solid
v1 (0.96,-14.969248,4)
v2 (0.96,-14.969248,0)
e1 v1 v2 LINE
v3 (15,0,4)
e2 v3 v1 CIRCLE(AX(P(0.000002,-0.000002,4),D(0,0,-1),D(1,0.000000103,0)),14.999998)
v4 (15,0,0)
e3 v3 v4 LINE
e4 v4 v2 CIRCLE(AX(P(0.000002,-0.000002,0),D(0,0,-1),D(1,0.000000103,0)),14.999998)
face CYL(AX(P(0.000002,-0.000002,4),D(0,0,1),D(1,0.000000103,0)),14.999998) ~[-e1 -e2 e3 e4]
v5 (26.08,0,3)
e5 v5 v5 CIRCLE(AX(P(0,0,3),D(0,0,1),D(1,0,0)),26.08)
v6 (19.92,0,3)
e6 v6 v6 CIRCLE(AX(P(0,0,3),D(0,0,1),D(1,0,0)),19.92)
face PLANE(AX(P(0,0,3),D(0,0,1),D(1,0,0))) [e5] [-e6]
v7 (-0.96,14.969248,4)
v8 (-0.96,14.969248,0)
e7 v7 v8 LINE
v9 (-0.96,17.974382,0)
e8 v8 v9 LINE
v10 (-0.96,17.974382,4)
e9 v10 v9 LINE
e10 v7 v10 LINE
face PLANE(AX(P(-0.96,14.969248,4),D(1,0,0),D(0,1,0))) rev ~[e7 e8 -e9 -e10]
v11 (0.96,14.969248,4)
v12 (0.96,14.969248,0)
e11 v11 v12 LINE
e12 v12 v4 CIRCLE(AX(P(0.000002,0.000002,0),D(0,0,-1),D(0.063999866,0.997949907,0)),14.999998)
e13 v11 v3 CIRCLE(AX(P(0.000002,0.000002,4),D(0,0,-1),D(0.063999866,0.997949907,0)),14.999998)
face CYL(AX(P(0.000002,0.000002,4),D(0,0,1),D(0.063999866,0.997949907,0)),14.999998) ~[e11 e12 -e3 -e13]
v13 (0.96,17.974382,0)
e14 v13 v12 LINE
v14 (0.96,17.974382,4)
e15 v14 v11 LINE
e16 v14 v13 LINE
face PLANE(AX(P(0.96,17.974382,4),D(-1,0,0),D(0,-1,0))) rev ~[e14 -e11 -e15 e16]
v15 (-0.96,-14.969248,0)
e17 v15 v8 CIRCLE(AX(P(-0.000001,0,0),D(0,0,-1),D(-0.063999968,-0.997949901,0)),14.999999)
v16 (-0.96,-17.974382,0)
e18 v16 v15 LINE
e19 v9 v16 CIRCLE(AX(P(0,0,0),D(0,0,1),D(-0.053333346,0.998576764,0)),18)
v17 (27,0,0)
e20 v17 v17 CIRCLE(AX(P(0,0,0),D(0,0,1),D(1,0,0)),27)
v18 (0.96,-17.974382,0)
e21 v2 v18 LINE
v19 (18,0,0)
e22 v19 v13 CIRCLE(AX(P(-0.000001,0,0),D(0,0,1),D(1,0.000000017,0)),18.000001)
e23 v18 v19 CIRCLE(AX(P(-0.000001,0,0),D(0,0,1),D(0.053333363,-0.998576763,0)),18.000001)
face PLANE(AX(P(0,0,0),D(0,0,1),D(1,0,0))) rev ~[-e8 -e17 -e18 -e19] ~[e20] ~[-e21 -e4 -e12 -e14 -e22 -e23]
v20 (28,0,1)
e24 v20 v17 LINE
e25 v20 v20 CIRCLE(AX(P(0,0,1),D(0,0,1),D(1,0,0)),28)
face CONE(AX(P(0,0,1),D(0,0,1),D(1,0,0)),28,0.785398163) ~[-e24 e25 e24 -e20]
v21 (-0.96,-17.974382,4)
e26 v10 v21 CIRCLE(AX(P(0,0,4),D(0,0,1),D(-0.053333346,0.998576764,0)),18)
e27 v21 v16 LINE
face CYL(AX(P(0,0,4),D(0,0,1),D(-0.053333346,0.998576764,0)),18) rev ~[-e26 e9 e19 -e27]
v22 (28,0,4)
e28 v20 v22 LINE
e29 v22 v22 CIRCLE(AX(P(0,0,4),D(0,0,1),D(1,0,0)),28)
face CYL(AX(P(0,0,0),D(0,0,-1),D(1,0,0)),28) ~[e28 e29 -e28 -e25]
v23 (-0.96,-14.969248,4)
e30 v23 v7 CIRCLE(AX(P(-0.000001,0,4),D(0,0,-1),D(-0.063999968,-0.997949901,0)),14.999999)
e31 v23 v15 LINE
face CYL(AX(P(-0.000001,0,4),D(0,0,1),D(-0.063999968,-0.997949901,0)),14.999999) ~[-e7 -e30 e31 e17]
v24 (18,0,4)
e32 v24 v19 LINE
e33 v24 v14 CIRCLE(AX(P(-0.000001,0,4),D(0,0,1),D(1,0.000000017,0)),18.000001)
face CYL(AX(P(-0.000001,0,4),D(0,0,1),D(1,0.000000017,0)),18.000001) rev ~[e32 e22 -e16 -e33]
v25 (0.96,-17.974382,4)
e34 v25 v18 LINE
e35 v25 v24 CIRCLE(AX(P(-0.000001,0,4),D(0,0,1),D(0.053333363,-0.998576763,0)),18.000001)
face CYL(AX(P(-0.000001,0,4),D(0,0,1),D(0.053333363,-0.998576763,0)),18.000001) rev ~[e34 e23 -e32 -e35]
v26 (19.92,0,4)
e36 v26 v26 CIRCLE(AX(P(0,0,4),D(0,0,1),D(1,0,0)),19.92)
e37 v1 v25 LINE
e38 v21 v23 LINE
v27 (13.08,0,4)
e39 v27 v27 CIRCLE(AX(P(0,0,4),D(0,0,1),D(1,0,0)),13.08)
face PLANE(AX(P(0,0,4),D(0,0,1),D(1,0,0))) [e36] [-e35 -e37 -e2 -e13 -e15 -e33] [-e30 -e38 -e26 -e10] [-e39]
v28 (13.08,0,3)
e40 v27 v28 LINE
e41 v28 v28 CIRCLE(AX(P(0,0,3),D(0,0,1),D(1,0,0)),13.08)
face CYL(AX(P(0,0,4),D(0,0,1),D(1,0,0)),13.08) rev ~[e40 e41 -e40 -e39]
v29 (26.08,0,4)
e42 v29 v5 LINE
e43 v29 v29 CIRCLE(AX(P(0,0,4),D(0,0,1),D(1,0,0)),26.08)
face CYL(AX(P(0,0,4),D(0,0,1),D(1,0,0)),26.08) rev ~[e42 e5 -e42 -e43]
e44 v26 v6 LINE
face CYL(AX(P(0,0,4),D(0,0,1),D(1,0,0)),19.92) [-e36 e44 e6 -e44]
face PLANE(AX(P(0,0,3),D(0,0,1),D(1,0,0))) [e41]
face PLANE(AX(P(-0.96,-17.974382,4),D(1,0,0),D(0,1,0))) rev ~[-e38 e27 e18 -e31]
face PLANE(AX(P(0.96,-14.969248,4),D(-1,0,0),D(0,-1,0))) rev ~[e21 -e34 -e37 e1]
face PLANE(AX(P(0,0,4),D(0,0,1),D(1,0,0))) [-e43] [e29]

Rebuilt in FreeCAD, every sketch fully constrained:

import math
import FreeCAD as App
import Part
import Sketcher
from FreeCAD import Vector


def edges_at(feature, points):
    """Names of the edges that pass closest to the given points."""
    edges = feature.Shape.Edges
    near = lambda p: min(range(len(edges)), key=lambda i: edges[i].distToShape(Part.Vertex(*p))[0])
    return sorted({f"Edge{near(p) + 1}" for p in points})

doc = App.newDocument("Part")
body = doc.addObject("PartDesign::Body", "Body")

# Sketch on XY plane
sketch1 = doc.addObject("Sketcher::SketchObject", "Sketch")
body.addObject(sketch1)
sketch1.AttachmentSupport = (doc.XY_Plane, [""])
sketch1.MapMode = "FlatFace"
sketch1.addGeometry(Part.Circle(Vector(0, 0, 0), Vector(0, 0, 1), 28), False)
sketch1.addConstraint([
    Sketcher.Constraint("Coincident", 0, 3, -1, 1),
    Sketcher.Constraint("Diameter", 0, 56.0),
])
pad1 = doc.addObject("PartDesign::Pad", "Pad")
body.addObject(pad1)
pad1.Profile = sketch1
pad1.Length = 4

# Sketch on XY plane
sketch2 = doc.addObject("Sketcher::SketchObject", "Sketch001")
body.addObject(sketch2)
sketch2.AttachmentSupport = (doc.XY_Plane, [""])
sketch2.MapMode = "FlatFace"
sketch2.AttachmentOffset = App.Placement(Vector(0, 0, 4), App.Rotation())
sketch2.addGeometry([
    Part.ArcOfCircle(Part.Circle(Vector(0, 0, 0), Vector(0, 0, 1), 15), math.radians(94), math.radians(266)),  # 0
    Part.LineSegment(Vector(-1, 15, 0), Vector(-1, 18, 0)),  # 1
    Part.ArcOfCircle(Part.Circle(Vector(0, 0, 0), Vector(0, 0, 1), 18), math.radians(93), math.radians(267)),  # 2
    Part.LineSegment(Vector(-1, -18, 0), Vector(-1, -15, 0)),  # 3
    Part.ArcOfCircle(Part.Circle(Vector(0, 0, 0), Vector(0, 0, 1), 15), math.radians(0), math.radians(86)),  # 4
    Part.ArcOfCircle(Part.Circle(Vector(0, 0, 0), Vector(0, 0, 1), 15), math.radians(-86), math.radians(0)),  # 5
    Part.LineSegment(Vector(1, -15, 0), Vector(1, -18, 0)),  # 6
    Part.ArcOfCircle(Part.Circle(Vector(0, 0, 0), Vector(0, 0, 1), 18), math.radians(-87), math.radians(0)),  # 7
    Part.ArcOfCircle(Part.Circle(Vector(0, 0, 0), Vector(0, 0, 1), 18), math.radians(0), math.radians(87)),  # 8
    Part.LineSegment(Vector(1, 18, 0), Vector(1, 15, 0)),  # 9
], False)
sketch2.addConstraint([
    Sketcher.Constraint("Coincident", 0, 1, 1, 1),
    Sketcher.Constraint("Coincident", 1, 2, 2, 1),
    Sketcher.Constraint("Coincident", 2, 2, 3, 1),
    Sketcher.Constraint("Coincident", 3, 2, 0, 2),
    Sketcher.Constraint("Tangent", 4, 1, 5, 2),
    Sketcher.Constraint("Coincident", 5, 1, 6, 1),
    Sketcher.Constraint("Coincident", 6, 2, 7, 1),
    Sketcher.Constraint("Tangent", 7, 2, 8, 1),
    Sketcher.Constraint("Coincident", 8, 2, 9, 1),
    Sketcher.Constraint("Coincident", 9, 2, 4, 2),
    Sketcher.Constraint("Vertical", 1),
    Sketcher.Constraint("Vertical", 3),
    Sketcher.Constraint("Vertical", 6),
    Sketcher.Constraint("Vertical", 9),
    Sketcher.Constraint("Coincident", 0, 3, -1, 1),
    Sketcher.Constraint("Coincident", 2, 3, -1, 1),
    Sketcher.Constraint("Coincident", 4, 3, -1, 1),
    Sketcher.Constraint("Coincident", 7, 3, -1, 1),
    Sketcher.Constraint("Equal", 0, 4),
    Sketcher.Constraint("Equal", 4, 5),
    Sketcher.Constraint("Equal", 2, 7),
    Sketcher.Constraint("Equal", 7, 8),
    Sketcher.Constraint("PointOnObject", 4, 1, -1),
    Sketcher.Constraint("PointOnObject", 7, 2, -1),
    Sketcher.Constraint("Horizontal", 3, 2, 5, 1),
    Sketcher.Constraint("Horizontal", 1, 2, 8, 2),
    Sketcher.Constraint("Vertical", 1, 2, 2, 2),
    Sketcher.Constraint("Radius", 0, 14.999999),
    Sketcher.Constraint("Radius", 2, 18.0),
    Sketcher.Constraint("DistanceX", 0, 1, -1, 1, 0.96),
])
pocket1 = doc.addObject("PartDesign::Pocket", "Pocket")
body.addObject(pocket1)
pocket1.Profile = sketch2
pocket1.Type = "ThroughAll"

# Sketch on XY plane
sketch3 = doc.addObject("Sketcher::SketchObject", "Sketch002")
body.addObject(sketch3)
sketch3.AttachmentSupport = (doc.XY_Plane, [""])
sketch3.MapMode = "FlatFace"
sketch3.AttachmentOffset = App.Placement(Vector(0, 0, 4), App.Rotation())
sketch3.addGeometry([
    Part.Circle(Vector(0, 0, 0), Vector(0, 0, 1), 26),
    Part.Circle(Vector(0, 0, 0), Vector(0, 0, 1), 20),
    Part.Circle(Vector(0, 0, 0), Vector(0, 0, 1), 13),
], False)
sketch3.addConstraint([
    Sketcher.Constraint("Coincident", 0, 3, -1, 1),
    Sketcher.Constraint("Coincident", 1, 3, -1, 1),
    Sketcher.Constraint("Coincident", 2, 3, -1, 1),
    Sketcher.Constraint("Diameter", 0, 52.16),
    Sketcher.Constraint("Diameter", 1, 39.84),
    Sketcher.Constraint("Diameter", 2, 26.16),
])
pocket2 = doc.addObject("PartDesign::Pocket", "Pocket001")
body.addObject(pocket2)
pocket2.Profile = sketch3
pocket2.Length = 1
doc.recompute()

chamfer = doc.addObject("PartDesign::Chamfer", "Chamfer")
body.addObject(chamfer)
chamfer.Base = (pocket2, edges_at(pocket2, [(-28, 0, 0)]))
chamfer.Size = 1

doc.recompute()
